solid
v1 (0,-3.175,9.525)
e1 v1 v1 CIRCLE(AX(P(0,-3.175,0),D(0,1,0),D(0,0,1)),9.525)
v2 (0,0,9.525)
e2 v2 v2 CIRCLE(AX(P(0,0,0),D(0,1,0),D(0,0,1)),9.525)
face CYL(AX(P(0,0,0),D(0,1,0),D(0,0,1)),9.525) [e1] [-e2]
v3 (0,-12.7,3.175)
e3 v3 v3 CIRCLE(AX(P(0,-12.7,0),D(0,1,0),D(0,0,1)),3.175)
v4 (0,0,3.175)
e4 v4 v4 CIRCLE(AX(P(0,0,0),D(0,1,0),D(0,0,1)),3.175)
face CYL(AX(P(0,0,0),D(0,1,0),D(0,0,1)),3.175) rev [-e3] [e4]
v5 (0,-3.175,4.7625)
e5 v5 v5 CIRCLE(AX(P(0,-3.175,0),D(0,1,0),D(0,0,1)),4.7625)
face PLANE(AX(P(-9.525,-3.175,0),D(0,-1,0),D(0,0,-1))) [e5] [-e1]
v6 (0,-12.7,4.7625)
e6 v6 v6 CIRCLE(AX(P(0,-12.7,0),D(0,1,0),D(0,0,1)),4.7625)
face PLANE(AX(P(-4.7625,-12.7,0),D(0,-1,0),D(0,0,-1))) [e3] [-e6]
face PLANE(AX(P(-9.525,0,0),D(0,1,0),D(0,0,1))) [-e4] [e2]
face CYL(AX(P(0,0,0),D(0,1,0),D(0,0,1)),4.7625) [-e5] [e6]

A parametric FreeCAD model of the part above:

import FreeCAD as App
import Part
import Sketcher

V = App.Vector
Q = App.Units.Quantity


def add_polygon(sketch, points):
    """Adds a closed chain of lines whose ends are joined by coincident constraints."""
    first, n = sketch.GeometryCount, len(points)
    for a, b in zip(points, points[1:] + points[:1]):
        sketch.addGeometry(Part.LineSegment(App.Vector(*a, 0), App.Vector(*b, 0)), False)
    for i in range(n):
        sketch.addConstraint(Sketcher.Constraint("Coincident", first + i, 2, first + (i + 1) % n, 1))

doc = App.newDocument("Part")
body = doc.addObject("PartDesign::Body", "Body")

# Sketch on XY plane
sketch1 = doc.addObject("Sketcher::SketchObject", "Sketch")
body.addObject(sketch1)
sketch1.AttachmentSupport = (doc.XY_Plane, [""])
sketch1.MapMode = "FlatFace"
add_polygon(sketch1, [(-3.2, 0), (-9.5, 0), (-9.5, -3.2), (-4.8, -3.2), (-4.8, -12.7), (-3.2, -12.7)])  # lines 0-5
sketch1.addConstraint([
    Sketcher.Constraint("Horizontal", 0),
    Sketcher.Constraint("Vertical", 1),
    Sketcher.Constraint("Horizontal", 2),
    Sketcher.Constraint("Vertical", 3),
    Sketcher.Constraint("Horizontal", 4),
    Sketcher.Constraint("Vertical", 5),
    Sketcher.Constraint("PointOnObject", 0, 2, -1),
    Sketcher.Constraint("DistanceY", 5, 1, 5, 2, Q("0.5 in")),
    Sketcher.Constraint("DistanceX", 0, 2, 0, 1, Q("0.25 in")),
    Sketcher.Constraint("DistanceX", 2, 1, 2, 2, Q("0.1875 in")),
    Sketcher.Constraint("DistanceY", 1, 2, 1, 1, Q("0.125 in")),
    Sketcher.Constraint("DistanceX", 0, 2, -1, 1, Q("0.375 in")),
])
revolution = doc.addObject("PartDesign::Revolution", "Revolution")
body.addObject(revolution)
revolution.Profile = sketch1
revolution.ReferenceAxis = (sketch1, ["V_Axis"])
revolution.Angle = 360

doc.recompute()
